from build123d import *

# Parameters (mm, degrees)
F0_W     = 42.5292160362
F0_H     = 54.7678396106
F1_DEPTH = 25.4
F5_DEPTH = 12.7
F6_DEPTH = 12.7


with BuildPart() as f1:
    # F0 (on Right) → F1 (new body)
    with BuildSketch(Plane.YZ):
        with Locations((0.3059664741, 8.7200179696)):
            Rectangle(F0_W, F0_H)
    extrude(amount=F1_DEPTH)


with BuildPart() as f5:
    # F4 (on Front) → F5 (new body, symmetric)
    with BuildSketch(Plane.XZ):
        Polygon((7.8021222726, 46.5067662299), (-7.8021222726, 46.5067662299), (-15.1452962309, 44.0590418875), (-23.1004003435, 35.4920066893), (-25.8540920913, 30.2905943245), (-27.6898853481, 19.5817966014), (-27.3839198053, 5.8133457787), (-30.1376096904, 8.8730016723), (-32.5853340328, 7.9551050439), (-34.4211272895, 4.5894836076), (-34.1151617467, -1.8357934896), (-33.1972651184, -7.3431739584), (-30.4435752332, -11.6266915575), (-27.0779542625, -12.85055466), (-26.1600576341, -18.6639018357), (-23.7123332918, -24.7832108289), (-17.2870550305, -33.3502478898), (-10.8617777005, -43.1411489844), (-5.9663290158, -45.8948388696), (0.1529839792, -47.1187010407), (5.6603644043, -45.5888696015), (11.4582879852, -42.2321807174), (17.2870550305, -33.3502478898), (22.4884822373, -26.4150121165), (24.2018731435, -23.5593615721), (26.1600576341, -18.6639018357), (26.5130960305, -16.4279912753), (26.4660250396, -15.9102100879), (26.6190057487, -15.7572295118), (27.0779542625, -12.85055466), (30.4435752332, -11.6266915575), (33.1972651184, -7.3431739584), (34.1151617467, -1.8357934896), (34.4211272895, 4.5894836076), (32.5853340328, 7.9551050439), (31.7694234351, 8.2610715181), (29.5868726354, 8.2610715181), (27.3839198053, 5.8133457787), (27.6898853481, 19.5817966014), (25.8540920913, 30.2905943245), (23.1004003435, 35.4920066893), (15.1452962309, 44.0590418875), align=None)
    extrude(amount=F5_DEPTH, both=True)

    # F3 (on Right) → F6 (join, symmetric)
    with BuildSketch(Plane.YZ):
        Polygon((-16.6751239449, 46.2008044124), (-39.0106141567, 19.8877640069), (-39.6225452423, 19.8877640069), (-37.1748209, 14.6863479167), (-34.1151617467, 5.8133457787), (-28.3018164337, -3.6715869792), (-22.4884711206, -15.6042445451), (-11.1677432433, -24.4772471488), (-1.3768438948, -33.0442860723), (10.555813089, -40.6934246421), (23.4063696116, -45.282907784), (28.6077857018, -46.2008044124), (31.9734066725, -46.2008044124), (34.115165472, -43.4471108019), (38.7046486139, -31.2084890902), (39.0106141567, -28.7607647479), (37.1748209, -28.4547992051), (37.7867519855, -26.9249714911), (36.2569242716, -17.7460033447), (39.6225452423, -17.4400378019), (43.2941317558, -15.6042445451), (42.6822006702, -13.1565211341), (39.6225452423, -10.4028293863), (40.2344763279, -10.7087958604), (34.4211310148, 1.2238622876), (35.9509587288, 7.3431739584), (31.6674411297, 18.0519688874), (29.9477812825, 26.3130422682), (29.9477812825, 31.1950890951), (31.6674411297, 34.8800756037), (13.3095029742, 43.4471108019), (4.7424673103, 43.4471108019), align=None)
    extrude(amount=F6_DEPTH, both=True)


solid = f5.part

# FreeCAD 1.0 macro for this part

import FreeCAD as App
import Part
import Sketcher
Q = App.Units.Quantity

doc = App.newDocument("Part")
body = doc.addObject("PartDesign::Body", "Body")

sketch1 = body.newObject("Sketcher::SketchObject", "Sketch")
sketch1.AttachmentSupport = (doc.getObject("YZ_Plane"), [""])
sketch1.MapMode = "FlatFace"
sketch1.addGeometry([
    Part.LineSegment(App.Vector(-21, 36, 0), App.Vector(-21, -19, 0)),
    Part.LineSegment(App.Vector(-21, -19, 0), App.Vector(22, -19, 0)),
    Part.LineSegment(App.Vector(22, -19, 0), App.Vector(22, 36, 0)),
    Part.LineSegment(App.Vector(22, 36, 0), App.Vector(-21, 36, 0)),
], False)
sketch1.addConstraint([
    Sketcher.Constraint("Coincident", 0, 2, 1, 1),
    Sketcher.Constraint("Coincident", 1, 2, 2, 1),
    Sketcher.Constraint("Coincident", 2, 2, 3, 1),
    Sketcher.Constraint("Coincident", 3, 2, 0, 1),
    Sketcher.Constraint("Vertical", 0),
    Sketcher.Constraint("Horizontal", 1),
    Sketcher.Constraint("Vertical", 2),
    Sketcher.Constraint("Horizontal", 3),
    Sketcher.Constraint("DistanceY", 0, 2, 0, 1, 54.76784),
    Sketcher.Constraint("DistanceY", 0, 2, -1, 1, 18.663902),
    Sketcher.Constraint("DistanceX", 1, 1, 1, 2, 42.529216),
    Sketcher.Constraint("DistanceX", 0, 2, -1, 1, 20.958642),
])
pad1 = body.newObject("PartDesign::Pad", "Pad")
pad1.Profile = sketch1
pad1.Length = Q("1 in")
body2 = doc.addObject("PartDesign::Body", "Body001")

sketch2 = body2.newObject("Sketcher::SketchObject", "Sketch001")
sketch2.AttachmentSupport = (doc.getObject("XZ_Plane001"), [""])
sketch2.MapMode = "FlatFace"
sketch2.addGeometry([
    Part.LineSegment(App.Vector(7.8, 46.51, 0), App.Vector(-7.8, 46.51, 0)),
    Part.LineSegment(App.Vector(-7.8, 46.51, 0), App.Vector(-15.15, 44.06, 0)),
    Part.LineSegment(App.Vector(-15.15, 44.06, 0), App.Vector(-23.1, 35.49, 0)),
    Part.LineSegment(App.Vector(-23.1, 35.49, 0), App.Vector(-25.85, 30.29, 0)),
    Part.LineSegment(App.Vector(-25.85, 30.29, 0), App.Vector(-27.69, 19.58, 0)),
    Part.LineSegment(App.Vector(-27.69, 19.58, 0), App.Vector(-27.38, 5.81, 0)),
    Part.LineSegment(App.Vector(-27.38, 5.81, 0), App.Vector(-30.14, 8.87, 0)),
    Part.LineSegment(App.Vector(-30.14, 8.87, 0), App.Vector(-32.59, 7.96, 0)),
    Part.LineSegment(App.Vector(-32.59, 7.96, 0), App.Vector(-34.42, 4.59, 0)),
    Part.LineSegment(App.Vector(-34.42, 4.59, 0), App.Vector(-34.12, -1.84, 0)),
    Part.LineSegment(App.Vector(-34.12, -1.84, 0), App.Vector(-33.2, -7.34, 0)),
    Part.LineSegment(App.Vector(-33.2, -7.34, 0), App.Vector(-30.44, -11.63, 0)),
    Part.LineSegment(App.Vector(-30.44, -11.63, 0), App.Vector(-27.08, -12.85, 0)),
    Part.LineSegment(App.Vector(-27.08, -12.85, 0), App.Vector(-26.16, -18.66, 0)),
    Part.LineSegment(App.Vector(-26.16, -18.66, 0), App.Vector(-23.71, -24.78, 0)),
    Part.LineSegment(App.Vector(-23.71, -24.78, 0), App.Vector(-17.29, -33.35, 0)),
    Part.LineSegment(App.Vector(-17.29, -33.35, 0), App.Vector(-10.86, -43.14, 0)),
    Part.LineSegment(App.Vector(-10.86, -43.14, 0), App.Vector(-5.97, -45.89, 0)),
    Part.LineSegment(App.Vector(-5.97, -45.89, 0), App.Vector(0.15, -47.12, 0)),
    Part.LineSegment(App.Vector(0.15, -47.12, 0), App.Vector(5.66, -45.59, 0)),
    Part.LineSegment(App.Vector(5.66, -45.59, 0), App.Vector(11.46, -42.23, 0)),
    Part.LineSegment(App.Vector(11.46, -42.23, 0), App.Vector(17.29, -33.35, 0)),
    Part.LineSegment(App.Vector(17.29, -33.35, 0), App.Vector(22.49, -26.42, 0)),
    Part.LineSegment(App.Vector(22.49, -26.42, 0), App.Vector(24.2, -23.56, 0)),
    Part.LineSegment(App.Vector(24.2, -23.56, 0), App.Vector(26.16, -18.66, 0)),
    Part.LineSegment(App.Vector(26.16, -18.66, 0), App.Vector(26.51, -16.43, 0)),
    Part.LineSegment(App.Vector(26.51, -16.43, 0), App.Vector(26.47, -15.91, 0)),
    Part.LineSegment(App.Vector(26.47, -15.91, 0), App.Vector(26.62, -15.76, 0)),
    Part.LineSegment(App.Vector(26.62, -15.76, 0), App.Vector(27.08, -12.85, 0)),
    Part.LineSegment(App.Vector(27.08, -12.85, 0), App.Vector(30.44, -11.63, 0)),
    Part.LineSegment(App.Vector(30.44, -11.63, 0), App.Vector(33.2, -7.34, 0)),
    Part.LineSegment(App.Vector(33.2, -7.34, 0), App.Vector(34.12, -1.84, 0)),
    Part.LineSegment(App.Vector(34.12, -1.84, 0), App.Vector(34.42, 4.59, 0)),
    Part.LineSegment(App.Vector(34.42, 4.59, 0), App.Vector(32.59, 7.96, 0)),
    Part.LineSegment(App.Vector(32.59, 7.96, 0), App.Vector(31.77, 8.26, 0)),
    Part.LineSegment(App.Vector(31.77, 8.26, 0), App.Vector(29.59, 8.26, 0)),
    Part.LineSegment(App.Vector(29.59, 8.26, 0), App.Vector(27.38, 5.81, 0)),
    Part.LineSegment(App.Vector(27.38, 5.81, 0), App.Vector(27.69, 19.58, 0)),
    Part.LineSegment(App.Vector(27.69, 19.58, 0), App.Vector(25.85, 30.29, 0)),
    Part.LineSegment(App.Vector(25.85, 30.29, 0), App.Vector(23.1, 35.49, 0)),
    Part.LineSegment(App.Vector(23.1, 35.49, 0), App.Vector(15.15, 44.06, 0)),
    Part.LineSegment(App.Vector(15.15, 44.06, 0), App.Vector(7.8, 46.51, 0)),
], False)
sketch2.addConstraint([
    Sketcher.Constraint("Coincident", 0, 2, 1, 1),
    Sketcher.Constraint("Coincident", 1, 2, 2, 1),
    Sketcher.Constraint("Coincident", 2, 2, 3, 1),
    Sketcher.Constraint("Coincident", 3, 2, 4, 1),
    Sketcher.Constraint("Coincident", 4, 2, 5, 1),
    Sketcher.Constraint("Coincident", 5, 2, 6, 1),
    Sketcher.Constraint("Coincident", 6, 2, 7, 1),
    Sketcher.Constraint("Coincident", 7, 2, 8, 1),
    Sketcher.Constraint("Coincident", 8, 2, 9, 1),
    Sketcher.Constraint("Coincident", 9, 2, 10, 1),
    Sketcher.Constraint("Coincident", 10, 2, 11, 1),
    Sketcher.Constraint("Coincident", 11, 2, 12, 1),
    Sketcher.Constraint("Coincident", 12, 2, 13, 1),
    Sketcher.Constraint("Coincident", 13, 2, 14, 1),
    Sketcher.Constraint("Coincident", 14, 2, 15, 1),
    Sketcher.Constraint("Coincident", 15, 2, 16, 1),
    Sketcher.Constraint("Coincident", 16, 2, 17, 1),
    Sketcher.Constraint("Coincident", 17, 2, 18, 1),
    Sketcher.Constraint("Coincident", 18, 2, 19, 1),
    Sketcher.Constraint("Coincident", 19, 2, 20, 1),
    Sketcher.Constraint("Coincident", 20, 2, 21, 1),
    Sketcher.Constraint("Coincident", 21, 2, 22, 1),
    Sketcher.Constraint("Coincident", 22, 2, 23, 1),
    Sketcher.Constraint("Coincident", 23, 2, 24, 1),
    Sketcher.Constraint("Coincident", 24, 2, 25, 1),
    Sketcher.Constraint("Coincident", 25, 2, 26, 1),
    Sketcher.Constraint("Coincident", 26, 2, 27, 1),
    Sketcher.Constraint("Coincident", 27, 2, 28, 1),
    Sketcher.Constraint("Coincident", 28, 2, 29, 1),
    Sketcher.Constraint("Coincident", 29, 2, 30, 1),
    Sketcher.Constraint("Coincident", 30, 2, 31, 1),
    Sketcher.Constraint("Coincident", 31, 2, 32, 1),
    Sketcher.Constraint("Coincident", 32, 2, 33, 1),
    Sketcher.Constraint("Coincident", 33, 2, 34, 1),
    Sketcher.Constraint("Coincident", 34, 2, 35, 1),
    Sketcher.Constraint("Coincident", 35, 2, 36, 1),
    Sketcher.Constraint("Coincident", 36, 2, 37, 1),
    Sketcher.Constraint("Coincident", 37, 2, 38, 1),
    Sketcher.Constraint("Coincident", 38, 2, 39, 1),
    Sketcher.Constraint("Coincident", 39, 2, 40, 1),
    Sketcher.Constraint("Coincident", 40, 2, 41, 1),
    Sketcher.Constraint("Coincident", 41, 2, 0, 1),
    Sketcher.Constraint("Horizontal", 0),
    Sketcher.Constraint("Horizontal", 35),
    Sketcher.Constraint("Symmetric", 15, 2, 21, 2, -2),
    Sketcher.Constraint("Symmetric", 13, 2, 24, 2, -2),
    Sketcher.Constraint("Symmetric", 12, 2, 28, 2, -2),
    Sketcher.Constraint("Symmetric", 11, 2, 29, 2, -2),
    Sketcher.Constraint("Symmetric", 10, 2, 30, 2, -2),
    Sketcher.Constraint("Symmetric", 9, 2, 31, 2, -2),
    Sketcher.Constraint("Symmetric", 8, 2, 32, 2, -2),
    Sketcher.Constraint("Symmetric", 7, 2, 33, 2, -2),
    Sketcher.Constraint("Symmetric", 5, 2, 36, 2, -2),
    Sketcher.Constraint("Symmetric", 4, 2, 37, 2, -2),
    Sketcher.Constraint("Symmetric", 3, 2, 38, 2, -2),
    Sketcher.Constraint("Symmetric", 2, 2, 39, 2, -2),
    Sketcher.Constraint("Symmetric", 1, 2, 40, 2, -2),
    Sketcher.Constraint("Parallel", 25, 28),
    Sketcher.Constraint("Equal", 1, 41),
    Sketcher.Constraint("DistanceX", 39, 2, 34, 2, Q("0.3413001 in")),
    Sketcher.Constraint("Distance", 18, 6.240499),
    Sketcher.Constraint("Distance", 20, 6.699498),
    Sketcher.Constraint("DistanceX", 35, 2, 35, 1, 2.182551),
    Sketcher.Constraint("DistanceX", 2, 2, -1, 1, 23.1004),
    Sketcher.Constraint("DistanceY", -1, 1, 6, 2, 8.873002),
    Sketcher.Constraint("DistanceY", 13, 2, -1, 1, 18.663902),
    Sketcher.Constraint("DistanceY", 18, 2, -1, 1, 47.118701),
    Sketcher.Constraint("DistanceY", 7, 2, 2, 2, 27.536902),
    Sketcher.Constraint("DistanceY", 9, 2, 7, 2, 9.790899),
    Sketcher.Constraint("DistanceY", 11, 2, 9, 2, 9.790898),
    Sketcher.Constraint("DistanceY", 12, 2, 5, 2, 18.6639),
    Sketcher.Constraint("DistanceX", 12, 2, 15, 2, 9.790899),
    Sketcher.Constraint("DistanceY", 16, 2, 15, 2, 9.790901),
    Sketcher.Constraint("DistanceX", 18, 2, 22, 2, 22.335498),
    Sketcher.Constraint("DistanceY", 25, 2, 29, 2, 4.8013),
    Sketcher.Constraint("Distance", 4, 10.865012),
    Sketcher.Constraint("Distance", 5, 13.77185),
    Sketcher.Constraint("Distance", 7, 2.614171),
    Sketcher.Constraint("Distance", 11, 5.092282),
    Sketcher.Constraint("Distance", 17, 5.616781),
    Sketcher.Constraint("Distance", 19, 5.71591),
    Sketcher.Constraint("Distance", 21, 10.623712),
    Sketcher.Constraint("Distance", 24, 5.272572),
    Sketcher.Constraint("Distance", 25, 2.26361),
    Sketcher.Constraint("DistanceX", 0, 2, 0, 1, 15.604245),
    Sketcher.Constraint("DistanceY", -1, 1, 1, 2, 44.059042),
    Sketcher.Constraint("DistanceX", 5, 2, -1, 1, 27.38392),
    Sketcher.Constraint("DistanceX", 6, 2, -1, 1, 30.13761),
    Sketcher.Constraint("DistanceX", 9, 2, -1, 1, 34.115162),
    Sketcher.Constraint("DistanceY", 11, 2, -1, 1, 11.626692),
    Sketcher.Constraint("DistanceY", 14, 2, -1, 1, 24.783211),
    Sketcher.Constraint("DistanceY", 16, 2, -1, 1, 43.141149),
    Sketcher.Constraint("DistanceX", 17, 2, -1, 1, 5.966329),
    Sketcher.Constraint("DistanceY", 17, 2, -1, 1, 45.894839),
    Sketcher.Constraint("DistanceY", 19, 2, -1, 1, 45.58887),
    Sketcher.Constraint("DistanceY", 20, 2, -1, 1, 42.232181),
    Sketcher.Constraint("DistanceY", 23, 2, -1, 1, 23.559362),
    Sketcher.Constraint("DistanceY", 26, 2, -1, 1, 15.91021),
    Sketcher.Constraint("DistanceY", 27, 2, -1, 1, 15.75723),
    Sketcher.Constraint("DistanceY", -1, 1, 34, 2, 8.261072),
    Sketcher.Constraint("DistanceY", 2, 2, 0, 2, 11.01476),
    Sketcher.Constraint("DistanceX", 3, 2, 2, 2, 2.753692),
    Sketcher.Constraint("DistanceY", 3, 2, 0, 2, 16.216172),
    Sketcher.Constraint("DistanceY", 4, 2, 2, 2, 15.91021),
    Sketcher.Constraint("DistanceX", 4, 2, 1, 2, 12.544589),
    Sketcher.Constraint("DistanceY", 8, 2, 7, 2, 3.365621),
    Sketcher.Constraint("DistanceX", 8, 2, 4, 2, 6.731242),
    Sketcher.Constraint("DistanceY", 10, 2, 9, 2, 5.50738),
    Sketcher.Constraint("DistanceX", 10, 2, 7, 2, 0.611931),
    Sketcher.Constraint("DistanceX", 12, 2, 14, 2, 3.365621),
    Sketcher.Constraint("DistanceX", 13, 2, 16, 2, 15.29828),
    Sketcher.Constraint("DistanceY", 20, 2, 22, 2, 15.817169),
    Sketcher.Constraint("DistanceX", 26, 2, 25, 2, 0.047071),
])
pad2 = body2.newObject("PartDesign::Pad", "Pad001")
pad2.Profile = sketch2
pad2.Length = Q("1 in")
pad2.Midplane = True

sketch3 = body2.newObject("Sketcher::SketchObject", "Sketch002")
sketch3.AttachmentSupport = (doc.getObject("YZ_Plane001"), [""])
sketch3.MapMode = "FlatFace"
sketch3.addGeometry([
    Part.LineSegment(App.Vector(-16.7, 46.2, 0), App.Vector(-39, 19.9, 0)),
    Part.LineSegment(App.Vector(-39, 19.9, 0), App.Vector(-39.6, 19.9, 0)),
    Part.LineSegment(App.Vector(-39.6, 19.9, 0), App.Vector(-37.2, 14.7, 0)),
    Part.LineSegment(App.Vector(-37.2, 14.7, 0), App.Vector(-34.1, 5.8, 0)),
    Part.LineSegment(App.Vector(-34.1, 5.8, 0), App.Vector(-28.3, -3.7, 0)),
    Part.LineSegment(App.Vector(-28.3, -3.7, 0), App.Vector(-22.5, -15.6, 0)),
    Part.LineSegment(App.Vector(-22.5, -15.6, 0), App.Vector(-11.2, -24.5, 0)),
    Part.LineSegment(App.Vector(-11.2, -24.5, 0), App.Vector(-1.4, -33, 0)),
    Part.LineSegment(App.Vector(-1.4, -33, 0), App.Vector(10.6, -40.7, 0)),
    Part.LineSegment(App.Vector(10.6, -40.7, 0), App.Vector(23.4, -45.3, 0)),
    Part.LineSegment(App.Vector(23.4, -45.3, 0), App.Vector(28.6, -46.2, 0)),
    Part.LineSegment(App.Vector(28.6, -46.2, 0), App.Vector(32, -46.2, 0)),
    Part.LineSegment(App.Vector(32, -46.2, 0), App.Vector(34.1, -43.4, 0)),
    Part.LineSegment(App.Vector(34.1, -43.4, 0), App.Vector(38.7, -31.2, 0)),
    Part.LineSegment(App.Vector(38.7, -31.2, 0), App.Vector(39, -28.8, 0)),
    Part.LineSegment(App.Vector(39, -28.8, 0), App.Vector(37.2, -28.5, 0)),
    Part.LineSegment(App.Vector(37.2, -28.5, 0), App.Vector(37.8, -26.9, 0)),
    Part.LineSegment(App.Vector(37.8, -26.9, 0), App.Vector(36.3, -17.7, 0)),
    Part.LineSegment(App.Vector(36.3, -17.7, 0), App.Vector(39.6, -17.4, 0)),
    Part.LineSegment(App.Vector(39.6, -17.4, 0), App.Vector(43.3, -15.6, 0)),
    Part.LineSegment(App.Vector(43.3, -15.6, 0), App.Vector(42.7, -13.2, 0)),
    Part.LineSegment(App.Vector(42.7, -13.2, 0), App.Vector(39.6, -10.4, 0)),
    Part.LineSegment(App.Vector(39.6, -10.4, 0), App.Vector(40.2, -10.7, 0)),
    Part.LineSegment(App.Vector(40.2, -10.7, 0), App.Vector(34.4, 1.2, 0)),
    Part.LineSegment(App.Vector(34.4, 1.2, 0), App.Vector(36, 7.3, 0)),
    Part.LineSegment(App.Vector(36, 7.3, 0), App.Vector(31.7, 18.1, 0)),
    Part.LineSegment(App.Vector(31.7, 18.1, 0), App.Vector(29.9, 26.3, 0)),
    Part.LineSegment(App.Vector(29.9, 26.3, 0), App.Vector(29.9, 31.2, 0)),
    Part.LineSegment(App.Vector(29.9, 31.2, 0), App.Vector(31.7, 34.9, 0)),
    Part.LineSegment(App.Vector(31.7, 34.9, 0), App.Vector(13.3, 43.4, 0)),
    Part.LineSegment(App.Vector(13.3, 43.4, 0), App.Vector(4.7, 43.4, 0)),
    Part.LineSegment(App.Vector(4.7, 43.4, 0), App.Vector(-16.7, 46.2, 0)),
], False)
sketch3.addConstraint([
    Sketcher.Constraint("Coincident", 0, 2, 1, 1),
    Sketcher.Constraint("Coincident", 1, 2, 2, 1),
    Sketcher.Constraint("Coincident", 2, 2, 3, 1),
    Sketcher.Constraint("Coincident", 3, 2, 4, 1),
    Sketcher.Constraint("Coincident", 4, 2, 5, 1),
    Sketcher.Constraint("Coincident", 5, 2, 6, 1),
    Sketcher.Constraint("Coincident", 6, 2, 7, 1),
    Sketcher.Constraint("Coincident", 7, 2, 8, 1),
    Sketcher.Constraint("Coincident", 8, 2, 9, 1),
    Sketcher.Constraint("Coincident", 9, 2, 10, 1),
    Sketcher.Constraint("Coincident", 10, 2, 11, 1),
    Sketcher.Constraint("Coincident", 11, 2, 12, 1),
    Sketcher.Constraint("Coincident", 12, 2, 13, 1),
    Sketcher.Constraint("Coincident", 13, 2, 14, 1),
    Sketcher.Constraint("Coincident", 14, 2, 15, 1),
    Sketcher.Constraint("Coincident", 15, 2, 16, 1),
    Sketcher.Constraint("Coincident", 16, 2, 17, 1),
    Sketcher.Constraint("Coincident", 17, 2, 18, 1),
    Sketcher.Constraint("Coincident", 18, 2, 19, 1),
    Sketcher.Constraint("Coincident", 19, 2, 20, 1),
    Sketcher.Constraint("Coincident", 20, 2, 21, 1),
    Sketcher.Constraint("Coincident", 21, 2, 22, 1),
    Sketcher.Constraint("Coincident", 22, 2, 23, 1),
    Sketcher.Constraint("Coincident", 23, 2, 24, 1),
    Sketcher.Constraint("Coincident", 24, 2, 25, 1),
    Sketcher.Constraint("Coincident", 25, 2, 26, 1),
    Sketcher.Constraint("Coincident", 26, 2, 27, 1),
    Sketcher.Constraint("Coincident", 27, 2, 28, 1),
    Sketcher.Constraint("Coincident", 28, 2, 29, 1),
    Sketcher.Constraint("Coincident", 29, 2, 30, 1),
    Sketcher.Constraint("Coincident", 30, 2, 31, 1),
    Sketcher.Constraint("Coincident", 31, 2, 0, 1),
    Sketcher.Constraint("Horizontal", 1),
    Sketcher.Constraint("Horizontal", 11),
    Sketcher.Constraint("Vertical", 27),
    Sketcher.Constraint("Horizontal", 30),
    Sketcher.Constraint("Parallel", 5, 23),
    Sketcher.Constraint("Perpendicular", 28, 29),
    Sketcher.Constraint("Horizontal", 5, 2, 19, 2),
    Sketcher.Constraint("Vertical", 18, 2, 21, 2),
    Sketcher.Constraint("Vertical", 25, 2, 28, 2),
    Sketcher.Constraint("Equal", 5, 23),
    Sketcher.Constraint("Distance", 4, 11.124699),
    Sketcher.Constraint("Distance", 18, 3.3795),
    Sketcher.Constraint("DistanceX", 1, 2, 1, 1, 0.611931),
    Sketcher.Constraint("DistanceX", 11, 1, 11, 2, 3.365621),
    Sketcher.Constraint("DistanceY", 15, 2, -1, 1, 28.454799),
    Sketcher.Constraint("DistanceX", -1, 1, 20, 2, 42.682201),
    Sketcher.Constraint("DistanceX", 6, 2, 7, 2, 9.790899),
    Sketcher.Constraint("DistanceY", 7, 2, 4, 2, 29.372699),
    Sketcher.Constraint("DistanceX", 23, 2, 19, 2, 8.873001),
    Sketcher.Constraint("DistanceY", 21, 2, 25, 2, 28.454798),
    Sketcher.Constraint("DistanceY", 24, 2, 28, 2, 27.536902),
    Sketcher.Constraint("Distance", 6, 14.383638),
    Sketcher.Constraint("Distance", 17, 9.305581),
    Sketcher.Constraint("Distance", 19, 4.104959),
    Sketcher.Constraint("Distance", 22, 0.68416),
    Sketcher.Constraint("Distance", 26, 8.438161),
    Sketcher.Constraint("Distance", 28, 4.066492),
    Sketcher.Constraint("Distance", 29, 20.258529),
    Sketcher.Constraint("Distance", 31, 21.593889),
    Sketcher.Constraint("DistanceX", 30, 2, 30, 1, 8.567036),
    Sketcher.Constraint("DistanceY", 27, 1, 27, 2, 4.882047),
    Sketcher.Constraint("DistanceX", 2, 2, -1, 1, 37.174821),
    Sketcher.Constraint("DistanceX", 3, 2, -1, 1, 34.115162),
    Sketcher.Constraint("DistanceX", 5, 2, -1, 1, 22.488471),
    Sketcher.Constraint("DistanceX", -1, 1, 9, 2, 23.40637),
    Sketcher.Constraint("DistanceY", 12, 2, -1, 1, 43.447111),
    Sketcher.Constraint("DistanceX", -1, 1, 13, 2, 38.704649),
    Sketcher.Constraint("DistanceY", 13, 2, -1, 1, 31.208489),
    Sketcher.Constraint("DistanceX", -1, 1, 15, 2, 37.174821),
    Sketcher.Constraint("DistanceX", -1, 1, 16, 2, 37.786752),
    Sketcher.Constraint("DistanceY", 16, 2, -1, 1, 26.924971),
    Sketcher.Constraint("DistanceX", -1, 1, 19, 2, 43.294132),
    Sketcher.Constraint("DistanceY", 20, 2, -1, 1, 13.156521),
    Sketcher.Constraint("DistanceY", 21, 2, -1, 1, 10.402829),
    Sketcher.Constraint("DistanceX", -1, 1, 24, 2, 35.950959),
    Sketcher.Constraint("DistanceX", -1, 1, 25, 2, 31.667441),
    Sketcher.Constraint("DistanceX", -1, 1, 26, 2, 29.947781),
    Sketcher.Constraint("DistanceY", 3, 2, 0, 2, 14.074418),
    Sketcher.Constraint("DistanceY", 4, 2, 0, 2, 23.559351),
    Sketcher.Constraint("DistanceX", 1, 2, 4, 2, 11.320729),
    Sketcher.Constraint("DistanceY", 5, 2, 3, 2, 21.41759),
    Sketcher.Constraint("DistanceY", 6, 2, 4, 2, 20.80566),
    Sketcher.Constraint("DistanceY", 8, 2, 7, 2, 7.649139),
    Sketcher.Constraint("DistanceX", 4, 2, 8, 2, 38.85763),
    Sketcher.Constraint("DistanceY", 9, 2, 7, 2, 12.238622),
    Sketcher.Constraint("DistanceY", 10, 2, 8, 2, 5.50738),
    Sketcher.Constraint("DistanceX", 7, 2, 10, 2, 29.98463),
    Sketcher.Constraint("DistanceX", 11, 2, 12, 2, 2.141759),
    Sketcher.Constraint("DistanceY", 9, 2, 13, 2, 14.074419),
    Sketcher.Constraint("DistanceX", 12, 2, 14, 2, 4.895449),
    Sketcher.Constraint("DistanceY", 11, 2, 14, 2, 17.44004),
    Sketcher.Constraint("DistanceY", 16, 2, 17, 2, 9.178968),
    Sketcher.Constraint("DistanceX", 31, 2, 30, 2, 21.417591),
    Sketcher.Constraint("Distance", 2, 5.748572),
])
pad3 = body2.newObject("PartDesign::Pad", "Pad002")
pad3.Profile = sketch3
pad3.Length = Q("1 in")
pad3.Midplane = True
body.Visibility = False

doc.recompute()
